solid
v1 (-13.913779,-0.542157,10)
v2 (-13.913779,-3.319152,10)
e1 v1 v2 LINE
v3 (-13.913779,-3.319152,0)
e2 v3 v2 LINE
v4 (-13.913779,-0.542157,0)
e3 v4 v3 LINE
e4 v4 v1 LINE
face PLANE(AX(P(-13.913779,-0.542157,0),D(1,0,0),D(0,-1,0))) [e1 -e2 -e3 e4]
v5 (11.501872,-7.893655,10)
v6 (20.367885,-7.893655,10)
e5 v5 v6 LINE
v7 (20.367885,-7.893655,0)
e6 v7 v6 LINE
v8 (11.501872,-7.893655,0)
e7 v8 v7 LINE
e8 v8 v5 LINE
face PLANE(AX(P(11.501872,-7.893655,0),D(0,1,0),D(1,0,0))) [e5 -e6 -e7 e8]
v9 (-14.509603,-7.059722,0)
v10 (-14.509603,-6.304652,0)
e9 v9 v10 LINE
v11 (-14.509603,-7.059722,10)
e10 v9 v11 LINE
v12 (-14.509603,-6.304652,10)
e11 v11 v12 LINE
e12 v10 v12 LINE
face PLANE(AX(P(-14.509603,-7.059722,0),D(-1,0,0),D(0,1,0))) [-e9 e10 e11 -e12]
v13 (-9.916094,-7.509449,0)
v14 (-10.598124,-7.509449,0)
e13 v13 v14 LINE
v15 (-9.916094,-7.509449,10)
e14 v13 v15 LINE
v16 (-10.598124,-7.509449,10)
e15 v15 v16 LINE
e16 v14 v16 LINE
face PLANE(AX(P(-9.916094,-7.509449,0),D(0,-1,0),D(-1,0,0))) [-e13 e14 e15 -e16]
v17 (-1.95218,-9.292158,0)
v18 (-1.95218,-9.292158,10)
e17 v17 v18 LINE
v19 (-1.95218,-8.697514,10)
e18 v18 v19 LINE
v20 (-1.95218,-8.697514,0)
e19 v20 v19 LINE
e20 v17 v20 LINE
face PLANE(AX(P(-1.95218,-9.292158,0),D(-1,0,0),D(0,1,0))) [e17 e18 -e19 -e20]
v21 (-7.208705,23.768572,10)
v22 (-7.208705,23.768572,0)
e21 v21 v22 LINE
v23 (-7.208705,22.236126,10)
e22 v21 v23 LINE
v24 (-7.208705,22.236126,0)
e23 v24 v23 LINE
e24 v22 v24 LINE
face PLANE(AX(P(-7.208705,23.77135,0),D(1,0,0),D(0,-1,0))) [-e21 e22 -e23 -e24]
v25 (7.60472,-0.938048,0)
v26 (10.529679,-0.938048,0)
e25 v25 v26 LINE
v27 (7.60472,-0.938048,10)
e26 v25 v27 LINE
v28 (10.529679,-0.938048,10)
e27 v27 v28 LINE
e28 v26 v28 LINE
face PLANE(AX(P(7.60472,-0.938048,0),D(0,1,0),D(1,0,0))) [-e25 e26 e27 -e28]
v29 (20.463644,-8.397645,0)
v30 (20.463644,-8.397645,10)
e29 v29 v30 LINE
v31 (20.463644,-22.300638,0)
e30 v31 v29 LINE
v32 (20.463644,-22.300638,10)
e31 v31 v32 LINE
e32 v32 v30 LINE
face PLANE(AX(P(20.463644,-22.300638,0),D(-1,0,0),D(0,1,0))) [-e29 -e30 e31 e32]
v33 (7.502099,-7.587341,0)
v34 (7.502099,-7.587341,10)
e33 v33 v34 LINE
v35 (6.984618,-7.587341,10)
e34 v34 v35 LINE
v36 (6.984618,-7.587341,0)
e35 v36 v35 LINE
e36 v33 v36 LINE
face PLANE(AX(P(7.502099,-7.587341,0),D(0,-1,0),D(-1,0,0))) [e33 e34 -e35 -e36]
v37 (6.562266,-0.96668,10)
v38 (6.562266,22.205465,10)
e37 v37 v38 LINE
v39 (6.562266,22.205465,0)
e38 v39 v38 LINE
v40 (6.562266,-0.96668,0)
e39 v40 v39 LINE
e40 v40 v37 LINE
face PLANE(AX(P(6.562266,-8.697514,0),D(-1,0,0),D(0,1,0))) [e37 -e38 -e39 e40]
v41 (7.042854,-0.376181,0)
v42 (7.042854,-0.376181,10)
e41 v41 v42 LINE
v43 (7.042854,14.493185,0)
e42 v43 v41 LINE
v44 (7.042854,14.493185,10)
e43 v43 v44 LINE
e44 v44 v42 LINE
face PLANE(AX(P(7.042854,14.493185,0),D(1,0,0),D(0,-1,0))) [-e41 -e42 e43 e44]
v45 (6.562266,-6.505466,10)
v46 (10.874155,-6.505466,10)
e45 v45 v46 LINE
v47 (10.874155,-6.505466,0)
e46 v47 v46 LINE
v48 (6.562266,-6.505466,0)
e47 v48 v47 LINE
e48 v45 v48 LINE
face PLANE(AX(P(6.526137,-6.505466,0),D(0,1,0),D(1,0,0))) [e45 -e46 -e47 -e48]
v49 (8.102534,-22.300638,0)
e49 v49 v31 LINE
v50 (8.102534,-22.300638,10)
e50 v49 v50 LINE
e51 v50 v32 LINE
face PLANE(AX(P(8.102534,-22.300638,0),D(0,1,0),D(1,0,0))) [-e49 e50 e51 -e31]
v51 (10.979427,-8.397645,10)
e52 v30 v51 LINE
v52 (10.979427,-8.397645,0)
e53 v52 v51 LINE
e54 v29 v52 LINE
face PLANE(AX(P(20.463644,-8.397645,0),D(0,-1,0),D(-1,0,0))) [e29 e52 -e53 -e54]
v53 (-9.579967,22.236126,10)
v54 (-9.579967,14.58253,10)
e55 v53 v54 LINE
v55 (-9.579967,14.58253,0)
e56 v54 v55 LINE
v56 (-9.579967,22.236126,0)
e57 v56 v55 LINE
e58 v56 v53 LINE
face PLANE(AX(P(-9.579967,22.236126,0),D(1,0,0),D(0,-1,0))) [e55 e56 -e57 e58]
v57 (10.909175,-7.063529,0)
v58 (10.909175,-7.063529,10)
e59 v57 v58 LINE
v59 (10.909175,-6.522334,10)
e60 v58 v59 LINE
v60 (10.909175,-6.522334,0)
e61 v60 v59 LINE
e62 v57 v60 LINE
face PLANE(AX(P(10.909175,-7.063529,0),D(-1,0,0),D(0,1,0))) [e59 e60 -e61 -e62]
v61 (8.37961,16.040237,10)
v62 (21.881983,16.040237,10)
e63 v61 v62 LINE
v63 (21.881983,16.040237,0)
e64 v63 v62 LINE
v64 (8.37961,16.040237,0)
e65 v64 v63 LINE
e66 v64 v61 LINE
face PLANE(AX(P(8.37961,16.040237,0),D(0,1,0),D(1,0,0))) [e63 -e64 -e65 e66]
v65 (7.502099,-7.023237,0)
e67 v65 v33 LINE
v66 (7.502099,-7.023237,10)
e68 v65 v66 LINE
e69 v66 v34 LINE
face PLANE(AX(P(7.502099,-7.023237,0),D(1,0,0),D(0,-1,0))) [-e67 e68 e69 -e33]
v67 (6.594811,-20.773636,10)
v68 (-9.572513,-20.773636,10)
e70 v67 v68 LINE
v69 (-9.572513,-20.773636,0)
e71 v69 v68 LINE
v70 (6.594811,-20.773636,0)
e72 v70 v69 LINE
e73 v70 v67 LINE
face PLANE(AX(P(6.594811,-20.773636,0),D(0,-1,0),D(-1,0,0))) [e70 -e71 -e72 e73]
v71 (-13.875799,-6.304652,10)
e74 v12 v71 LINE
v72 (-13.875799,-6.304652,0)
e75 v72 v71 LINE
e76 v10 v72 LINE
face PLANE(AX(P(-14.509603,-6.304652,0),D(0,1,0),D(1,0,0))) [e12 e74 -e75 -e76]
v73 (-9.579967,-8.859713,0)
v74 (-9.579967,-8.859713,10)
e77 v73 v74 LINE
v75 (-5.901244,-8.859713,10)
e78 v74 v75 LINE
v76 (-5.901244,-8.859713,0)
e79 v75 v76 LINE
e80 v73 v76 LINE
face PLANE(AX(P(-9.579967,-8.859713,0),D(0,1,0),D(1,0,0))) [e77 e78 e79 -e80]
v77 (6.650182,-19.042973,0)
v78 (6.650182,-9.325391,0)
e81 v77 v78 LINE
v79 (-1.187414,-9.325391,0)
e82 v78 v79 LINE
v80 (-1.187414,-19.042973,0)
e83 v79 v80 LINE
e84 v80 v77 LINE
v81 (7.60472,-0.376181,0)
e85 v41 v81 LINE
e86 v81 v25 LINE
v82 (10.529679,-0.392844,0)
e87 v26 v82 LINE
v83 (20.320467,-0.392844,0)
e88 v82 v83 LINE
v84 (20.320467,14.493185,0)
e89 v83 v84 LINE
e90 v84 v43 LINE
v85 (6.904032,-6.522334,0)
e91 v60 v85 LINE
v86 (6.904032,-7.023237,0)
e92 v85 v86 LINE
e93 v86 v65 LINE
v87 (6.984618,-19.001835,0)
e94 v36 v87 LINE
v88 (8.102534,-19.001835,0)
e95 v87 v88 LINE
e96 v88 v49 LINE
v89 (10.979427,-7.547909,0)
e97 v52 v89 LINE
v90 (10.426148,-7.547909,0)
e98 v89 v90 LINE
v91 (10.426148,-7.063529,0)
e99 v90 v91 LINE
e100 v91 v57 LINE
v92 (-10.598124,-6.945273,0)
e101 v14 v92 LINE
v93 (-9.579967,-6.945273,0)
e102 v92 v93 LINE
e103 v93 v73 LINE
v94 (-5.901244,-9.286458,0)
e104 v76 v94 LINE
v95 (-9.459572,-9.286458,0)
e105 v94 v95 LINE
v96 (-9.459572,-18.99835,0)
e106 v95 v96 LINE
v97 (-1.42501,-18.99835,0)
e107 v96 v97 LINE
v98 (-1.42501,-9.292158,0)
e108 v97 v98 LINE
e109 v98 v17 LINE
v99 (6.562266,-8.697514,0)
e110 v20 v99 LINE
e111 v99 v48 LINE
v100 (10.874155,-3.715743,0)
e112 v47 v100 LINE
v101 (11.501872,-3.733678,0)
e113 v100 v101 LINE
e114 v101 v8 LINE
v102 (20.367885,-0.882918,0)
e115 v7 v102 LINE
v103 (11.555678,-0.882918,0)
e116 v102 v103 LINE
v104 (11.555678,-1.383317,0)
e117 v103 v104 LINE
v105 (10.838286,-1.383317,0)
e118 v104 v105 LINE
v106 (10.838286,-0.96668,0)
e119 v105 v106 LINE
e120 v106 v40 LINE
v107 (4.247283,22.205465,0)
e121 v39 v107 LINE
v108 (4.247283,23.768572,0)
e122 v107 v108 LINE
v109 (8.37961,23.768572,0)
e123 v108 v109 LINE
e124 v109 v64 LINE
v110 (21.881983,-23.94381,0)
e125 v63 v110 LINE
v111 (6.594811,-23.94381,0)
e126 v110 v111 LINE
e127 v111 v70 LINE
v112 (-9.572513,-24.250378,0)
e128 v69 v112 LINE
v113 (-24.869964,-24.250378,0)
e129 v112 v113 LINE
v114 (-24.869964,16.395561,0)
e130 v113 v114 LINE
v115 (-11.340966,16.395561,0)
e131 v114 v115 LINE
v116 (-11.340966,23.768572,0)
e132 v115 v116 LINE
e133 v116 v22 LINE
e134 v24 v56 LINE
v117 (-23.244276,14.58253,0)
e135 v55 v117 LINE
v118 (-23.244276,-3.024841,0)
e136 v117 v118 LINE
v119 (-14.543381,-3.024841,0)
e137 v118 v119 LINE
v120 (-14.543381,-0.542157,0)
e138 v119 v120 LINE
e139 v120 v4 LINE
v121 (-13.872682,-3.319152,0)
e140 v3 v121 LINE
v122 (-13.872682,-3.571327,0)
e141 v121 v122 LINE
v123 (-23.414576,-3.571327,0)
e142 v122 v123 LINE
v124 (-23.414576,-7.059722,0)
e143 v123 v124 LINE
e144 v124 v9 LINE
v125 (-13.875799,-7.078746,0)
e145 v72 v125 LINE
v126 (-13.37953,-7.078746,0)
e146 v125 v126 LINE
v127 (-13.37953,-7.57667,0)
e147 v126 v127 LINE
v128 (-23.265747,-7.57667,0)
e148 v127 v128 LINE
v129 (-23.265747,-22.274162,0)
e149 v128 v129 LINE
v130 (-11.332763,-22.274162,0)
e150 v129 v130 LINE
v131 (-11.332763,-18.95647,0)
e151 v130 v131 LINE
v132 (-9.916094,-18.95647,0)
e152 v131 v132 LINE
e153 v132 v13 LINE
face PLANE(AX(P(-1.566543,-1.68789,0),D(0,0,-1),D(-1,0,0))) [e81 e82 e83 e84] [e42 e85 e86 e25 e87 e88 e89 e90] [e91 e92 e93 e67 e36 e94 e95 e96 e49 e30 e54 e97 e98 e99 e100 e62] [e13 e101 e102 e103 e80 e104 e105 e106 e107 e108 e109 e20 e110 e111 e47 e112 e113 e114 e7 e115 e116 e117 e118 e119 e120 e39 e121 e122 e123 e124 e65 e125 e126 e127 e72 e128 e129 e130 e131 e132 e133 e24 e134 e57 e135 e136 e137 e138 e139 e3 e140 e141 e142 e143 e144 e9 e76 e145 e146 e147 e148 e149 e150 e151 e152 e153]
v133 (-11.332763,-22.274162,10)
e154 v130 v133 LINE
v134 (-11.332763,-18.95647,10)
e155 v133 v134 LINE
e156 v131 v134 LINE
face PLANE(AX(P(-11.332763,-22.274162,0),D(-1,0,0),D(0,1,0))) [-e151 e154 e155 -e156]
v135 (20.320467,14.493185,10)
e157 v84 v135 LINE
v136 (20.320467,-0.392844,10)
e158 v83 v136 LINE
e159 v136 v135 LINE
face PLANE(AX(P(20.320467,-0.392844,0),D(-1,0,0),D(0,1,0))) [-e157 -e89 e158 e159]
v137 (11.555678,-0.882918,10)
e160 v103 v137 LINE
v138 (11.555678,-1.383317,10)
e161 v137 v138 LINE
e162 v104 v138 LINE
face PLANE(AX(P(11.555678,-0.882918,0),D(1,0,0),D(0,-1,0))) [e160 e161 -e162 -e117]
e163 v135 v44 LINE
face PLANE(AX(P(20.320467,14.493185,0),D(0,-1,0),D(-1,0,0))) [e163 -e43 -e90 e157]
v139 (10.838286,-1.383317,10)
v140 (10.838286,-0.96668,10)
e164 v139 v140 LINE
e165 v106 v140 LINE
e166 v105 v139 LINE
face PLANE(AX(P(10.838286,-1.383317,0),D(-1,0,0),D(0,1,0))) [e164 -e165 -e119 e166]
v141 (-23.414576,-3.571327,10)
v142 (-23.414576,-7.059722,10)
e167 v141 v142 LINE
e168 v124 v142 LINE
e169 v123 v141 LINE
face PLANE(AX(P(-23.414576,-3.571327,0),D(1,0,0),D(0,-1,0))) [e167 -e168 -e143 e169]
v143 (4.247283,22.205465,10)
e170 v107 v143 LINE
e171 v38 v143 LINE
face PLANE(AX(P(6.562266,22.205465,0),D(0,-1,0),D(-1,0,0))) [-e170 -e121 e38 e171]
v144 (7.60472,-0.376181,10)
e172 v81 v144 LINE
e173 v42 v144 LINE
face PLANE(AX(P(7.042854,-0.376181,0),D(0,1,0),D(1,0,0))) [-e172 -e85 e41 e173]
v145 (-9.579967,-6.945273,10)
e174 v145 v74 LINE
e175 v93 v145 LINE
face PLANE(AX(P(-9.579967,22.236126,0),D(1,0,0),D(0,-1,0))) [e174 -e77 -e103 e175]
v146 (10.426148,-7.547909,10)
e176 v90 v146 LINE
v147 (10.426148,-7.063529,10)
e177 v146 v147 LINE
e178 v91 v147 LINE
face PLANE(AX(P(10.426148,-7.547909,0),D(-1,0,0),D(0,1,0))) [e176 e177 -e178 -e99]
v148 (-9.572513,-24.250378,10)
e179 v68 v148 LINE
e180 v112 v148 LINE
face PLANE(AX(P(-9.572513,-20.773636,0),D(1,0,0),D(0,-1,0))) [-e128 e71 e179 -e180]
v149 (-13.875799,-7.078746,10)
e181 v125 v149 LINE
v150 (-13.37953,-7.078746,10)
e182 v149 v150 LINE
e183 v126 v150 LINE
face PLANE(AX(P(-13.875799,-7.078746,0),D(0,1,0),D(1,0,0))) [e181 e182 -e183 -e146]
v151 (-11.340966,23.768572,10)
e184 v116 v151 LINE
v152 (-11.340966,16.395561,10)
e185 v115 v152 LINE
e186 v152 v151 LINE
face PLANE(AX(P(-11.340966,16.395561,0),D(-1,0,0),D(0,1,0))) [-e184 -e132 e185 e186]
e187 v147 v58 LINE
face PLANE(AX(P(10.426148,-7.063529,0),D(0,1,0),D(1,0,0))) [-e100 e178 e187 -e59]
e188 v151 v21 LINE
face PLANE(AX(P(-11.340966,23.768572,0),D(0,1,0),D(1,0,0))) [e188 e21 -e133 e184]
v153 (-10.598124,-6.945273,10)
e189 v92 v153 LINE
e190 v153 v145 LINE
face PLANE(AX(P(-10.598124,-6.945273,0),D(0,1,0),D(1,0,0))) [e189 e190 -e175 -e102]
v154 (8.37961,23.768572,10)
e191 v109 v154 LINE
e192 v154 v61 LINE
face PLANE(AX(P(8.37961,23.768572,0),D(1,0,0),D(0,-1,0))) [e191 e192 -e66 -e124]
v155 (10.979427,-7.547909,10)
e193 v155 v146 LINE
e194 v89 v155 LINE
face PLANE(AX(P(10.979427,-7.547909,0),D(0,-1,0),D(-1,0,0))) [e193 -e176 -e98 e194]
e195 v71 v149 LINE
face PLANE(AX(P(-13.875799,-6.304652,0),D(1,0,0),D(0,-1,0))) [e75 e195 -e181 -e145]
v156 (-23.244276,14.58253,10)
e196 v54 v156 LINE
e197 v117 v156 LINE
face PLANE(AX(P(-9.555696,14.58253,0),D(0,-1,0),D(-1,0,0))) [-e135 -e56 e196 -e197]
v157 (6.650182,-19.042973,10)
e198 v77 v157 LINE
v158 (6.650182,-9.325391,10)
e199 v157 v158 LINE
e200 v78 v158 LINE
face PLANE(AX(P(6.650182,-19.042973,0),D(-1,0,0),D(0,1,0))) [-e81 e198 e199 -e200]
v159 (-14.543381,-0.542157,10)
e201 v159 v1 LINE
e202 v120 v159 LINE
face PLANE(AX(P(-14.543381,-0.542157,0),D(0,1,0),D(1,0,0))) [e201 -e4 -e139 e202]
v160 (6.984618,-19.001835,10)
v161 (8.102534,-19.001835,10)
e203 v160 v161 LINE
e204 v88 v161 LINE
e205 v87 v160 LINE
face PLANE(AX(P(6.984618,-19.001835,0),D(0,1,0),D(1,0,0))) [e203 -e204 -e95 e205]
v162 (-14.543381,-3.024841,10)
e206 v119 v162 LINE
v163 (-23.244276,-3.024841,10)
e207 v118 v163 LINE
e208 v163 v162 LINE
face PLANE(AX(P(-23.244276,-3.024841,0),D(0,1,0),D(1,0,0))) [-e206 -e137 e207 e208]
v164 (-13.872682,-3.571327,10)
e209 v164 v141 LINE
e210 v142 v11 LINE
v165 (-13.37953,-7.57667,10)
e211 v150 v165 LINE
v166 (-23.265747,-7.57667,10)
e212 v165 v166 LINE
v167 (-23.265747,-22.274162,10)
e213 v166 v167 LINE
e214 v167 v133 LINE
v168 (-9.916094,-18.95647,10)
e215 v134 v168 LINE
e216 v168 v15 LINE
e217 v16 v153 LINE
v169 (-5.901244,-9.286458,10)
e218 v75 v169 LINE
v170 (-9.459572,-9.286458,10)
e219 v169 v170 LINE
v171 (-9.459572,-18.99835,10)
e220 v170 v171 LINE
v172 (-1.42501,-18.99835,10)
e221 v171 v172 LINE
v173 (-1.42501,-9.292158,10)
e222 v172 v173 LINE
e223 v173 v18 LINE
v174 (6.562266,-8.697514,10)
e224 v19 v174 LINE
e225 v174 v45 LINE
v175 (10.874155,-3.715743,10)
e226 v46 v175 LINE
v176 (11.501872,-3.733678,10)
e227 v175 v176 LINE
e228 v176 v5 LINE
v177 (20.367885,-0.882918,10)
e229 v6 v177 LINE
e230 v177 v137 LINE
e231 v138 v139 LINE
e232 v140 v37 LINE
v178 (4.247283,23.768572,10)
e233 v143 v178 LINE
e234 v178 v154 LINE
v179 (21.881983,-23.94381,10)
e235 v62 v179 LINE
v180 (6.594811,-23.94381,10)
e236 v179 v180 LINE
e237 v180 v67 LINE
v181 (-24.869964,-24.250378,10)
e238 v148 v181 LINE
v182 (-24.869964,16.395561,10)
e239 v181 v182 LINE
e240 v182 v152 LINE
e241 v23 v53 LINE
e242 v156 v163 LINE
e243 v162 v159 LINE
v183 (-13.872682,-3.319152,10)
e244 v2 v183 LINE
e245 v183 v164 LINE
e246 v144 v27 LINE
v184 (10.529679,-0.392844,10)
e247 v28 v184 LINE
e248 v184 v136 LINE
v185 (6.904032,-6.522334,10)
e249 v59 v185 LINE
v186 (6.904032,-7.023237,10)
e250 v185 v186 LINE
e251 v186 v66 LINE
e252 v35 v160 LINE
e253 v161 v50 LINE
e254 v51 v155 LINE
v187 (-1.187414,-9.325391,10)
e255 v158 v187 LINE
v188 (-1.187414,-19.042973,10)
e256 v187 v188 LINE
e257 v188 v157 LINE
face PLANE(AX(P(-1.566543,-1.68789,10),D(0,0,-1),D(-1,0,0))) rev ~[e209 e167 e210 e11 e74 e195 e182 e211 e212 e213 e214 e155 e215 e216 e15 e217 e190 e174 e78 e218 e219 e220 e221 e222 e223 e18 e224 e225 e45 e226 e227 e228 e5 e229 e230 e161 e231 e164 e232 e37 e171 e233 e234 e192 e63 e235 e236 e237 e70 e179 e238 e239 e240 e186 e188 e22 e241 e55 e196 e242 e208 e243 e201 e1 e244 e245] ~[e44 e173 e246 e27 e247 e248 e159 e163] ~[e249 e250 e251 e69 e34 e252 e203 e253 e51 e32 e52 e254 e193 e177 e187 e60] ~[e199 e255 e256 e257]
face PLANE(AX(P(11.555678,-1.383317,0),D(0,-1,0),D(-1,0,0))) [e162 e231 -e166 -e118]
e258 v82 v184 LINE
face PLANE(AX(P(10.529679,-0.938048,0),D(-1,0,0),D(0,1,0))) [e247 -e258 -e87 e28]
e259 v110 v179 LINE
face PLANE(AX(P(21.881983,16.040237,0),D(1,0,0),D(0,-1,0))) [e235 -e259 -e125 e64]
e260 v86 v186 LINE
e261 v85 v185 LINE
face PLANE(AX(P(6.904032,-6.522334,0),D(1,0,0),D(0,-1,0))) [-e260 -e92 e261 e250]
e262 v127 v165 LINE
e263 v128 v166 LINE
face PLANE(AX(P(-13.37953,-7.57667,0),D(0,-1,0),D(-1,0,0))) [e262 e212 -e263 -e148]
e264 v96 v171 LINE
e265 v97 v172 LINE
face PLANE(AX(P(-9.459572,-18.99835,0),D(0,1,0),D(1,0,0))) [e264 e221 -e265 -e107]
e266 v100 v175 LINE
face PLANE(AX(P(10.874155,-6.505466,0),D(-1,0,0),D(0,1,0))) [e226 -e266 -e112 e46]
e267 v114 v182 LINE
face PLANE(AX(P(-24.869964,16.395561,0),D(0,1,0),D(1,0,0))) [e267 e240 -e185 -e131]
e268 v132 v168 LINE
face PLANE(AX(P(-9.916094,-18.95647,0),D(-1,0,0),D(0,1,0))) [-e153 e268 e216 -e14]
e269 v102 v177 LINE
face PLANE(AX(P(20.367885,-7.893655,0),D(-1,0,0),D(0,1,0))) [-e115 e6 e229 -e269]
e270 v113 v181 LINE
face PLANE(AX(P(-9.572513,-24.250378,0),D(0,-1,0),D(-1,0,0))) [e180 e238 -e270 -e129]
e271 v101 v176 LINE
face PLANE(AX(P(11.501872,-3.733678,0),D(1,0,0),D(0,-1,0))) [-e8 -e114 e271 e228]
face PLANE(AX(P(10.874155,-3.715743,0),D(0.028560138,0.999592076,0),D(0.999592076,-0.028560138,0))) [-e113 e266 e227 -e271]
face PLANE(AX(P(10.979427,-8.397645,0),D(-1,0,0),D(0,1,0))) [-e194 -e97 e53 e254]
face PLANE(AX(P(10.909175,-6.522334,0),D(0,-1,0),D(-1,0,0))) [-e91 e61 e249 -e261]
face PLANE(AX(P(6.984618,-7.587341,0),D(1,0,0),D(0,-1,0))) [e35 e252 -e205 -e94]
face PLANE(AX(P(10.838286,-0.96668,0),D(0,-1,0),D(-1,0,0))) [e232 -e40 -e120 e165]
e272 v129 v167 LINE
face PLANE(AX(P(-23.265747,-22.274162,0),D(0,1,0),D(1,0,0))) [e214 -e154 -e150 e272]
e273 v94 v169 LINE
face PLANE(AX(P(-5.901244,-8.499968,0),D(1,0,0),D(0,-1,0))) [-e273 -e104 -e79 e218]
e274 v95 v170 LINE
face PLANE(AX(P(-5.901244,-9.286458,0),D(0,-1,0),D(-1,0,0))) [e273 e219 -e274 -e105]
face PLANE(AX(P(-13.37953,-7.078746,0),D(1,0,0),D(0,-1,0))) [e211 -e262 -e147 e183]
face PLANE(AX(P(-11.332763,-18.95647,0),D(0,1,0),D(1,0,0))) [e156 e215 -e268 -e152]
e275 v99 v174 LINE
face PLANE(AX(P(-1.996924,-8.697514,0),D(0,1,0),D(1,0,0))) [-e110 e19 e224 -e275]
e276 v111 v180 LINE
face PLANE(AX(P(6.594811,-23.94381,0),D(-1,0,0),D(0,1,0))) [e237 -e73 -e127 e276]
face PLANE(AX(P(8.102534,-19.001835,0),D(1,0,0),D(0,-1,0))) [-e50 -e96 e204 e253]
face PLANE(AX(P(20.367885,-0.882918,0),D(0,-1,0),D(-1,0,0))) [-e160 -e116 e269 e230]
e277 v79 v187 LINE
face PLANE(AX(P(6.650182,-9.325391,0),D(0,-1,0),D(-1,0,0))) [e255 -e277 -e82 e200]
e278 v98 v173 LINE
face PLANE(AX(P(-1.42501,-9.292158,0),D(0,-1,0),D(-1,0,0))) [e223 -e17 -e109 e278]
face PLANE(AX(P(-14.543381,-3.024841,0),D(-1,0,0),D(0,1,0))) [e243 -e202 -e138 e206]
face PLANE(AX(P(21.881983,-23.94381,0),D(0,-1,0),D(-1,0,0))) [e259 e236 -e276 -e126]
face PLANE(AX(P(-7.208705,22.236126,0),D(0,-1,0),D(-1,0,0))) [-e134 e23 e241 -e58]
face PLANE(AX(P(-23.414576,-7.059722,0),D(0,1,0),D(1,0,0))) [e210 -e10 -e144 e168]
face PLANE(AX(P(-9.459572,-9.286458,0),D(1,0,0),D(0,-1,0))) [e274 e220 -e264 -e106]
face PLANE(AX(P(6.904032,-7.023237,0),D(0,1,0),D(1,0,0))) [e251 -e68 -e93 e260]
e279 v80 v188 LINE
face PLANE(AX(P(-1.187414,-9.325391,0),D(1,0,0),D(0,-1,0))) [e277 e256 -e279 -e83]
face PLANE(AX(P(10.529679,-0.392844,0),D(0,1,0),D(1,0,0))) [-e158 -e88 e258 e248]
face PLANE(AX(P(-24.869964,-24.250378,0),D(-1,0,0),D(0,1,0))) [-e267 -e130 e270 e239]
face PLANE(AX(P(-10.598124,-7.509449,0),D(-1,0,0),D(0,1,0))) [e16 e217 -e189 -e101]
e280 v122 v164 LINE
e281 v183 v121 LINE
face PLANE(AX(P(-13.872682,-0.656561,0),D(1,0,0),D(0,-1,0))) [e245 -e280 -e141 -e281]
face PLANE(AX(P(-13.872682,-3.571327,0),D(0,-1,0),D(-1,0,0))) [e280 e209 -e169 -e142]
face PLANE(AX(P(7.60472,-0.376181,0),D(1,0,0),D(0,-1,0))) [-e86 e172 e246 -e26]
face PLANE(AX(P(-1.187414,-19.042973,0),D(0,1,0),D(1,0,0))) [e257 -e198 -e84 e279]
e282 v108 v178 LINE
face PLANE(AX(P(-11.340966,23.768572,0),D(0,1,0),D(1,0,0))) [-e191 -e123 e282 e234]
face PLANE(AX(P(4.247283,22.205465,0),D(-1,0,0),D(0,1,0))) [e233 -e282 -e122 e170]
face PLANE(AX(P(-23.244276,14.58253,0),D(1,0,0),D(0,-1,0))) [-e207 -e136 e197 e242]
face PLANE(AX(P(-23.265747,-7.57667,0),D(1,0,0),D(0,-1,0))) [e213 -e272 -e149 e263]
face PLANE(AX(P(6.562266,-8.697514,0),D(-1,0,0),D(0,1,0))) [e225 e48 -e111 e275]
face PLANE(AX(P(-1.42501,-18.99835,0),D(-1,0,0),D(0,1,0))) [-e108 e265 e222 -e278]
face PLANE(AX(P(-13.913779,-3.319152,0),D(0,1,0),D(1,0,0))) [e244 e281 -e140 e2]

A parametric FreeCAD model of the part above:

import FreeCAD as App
import Part
import Sketcher

V = App.Vector
Q = App.Units.Quantity

doc = App.newDocument("Part")
body = doc.addObject("PartDesign::Body", "Body")

sketch1 = body.newObject("Sketcher::SketchObject", "Sketch")
sketch1.AttachmentSupport = (doc.getObject("XY_Plane"), [""])
sketch1.MapMode = "FlatFace"
sketch1.addGeometry([
    Part.LineSegment(V(-11.3, 16.4, 0), V(-24.9, 16.4, 0)),
    Part.LineSegment(V(-24.9, 16.4, 0), V(-24.9, -24.3, 0)),
    Part.LineSegment(V(-24.9, -24.3, 0), V(-9.6, -24.3, 0)),
    Part.LineSegment(V(-9.6, -24.3, 0), V(-9.6, -20.8, 0)),
    Part.LineSegment(V(-9.6, -20.8, 0), V(6.6, -20.8, 0)),
    Part.LineSegment(V(6.6, -20.8, 0), V(6.6, -23.9, 0)),
    Part.LineSegment(V(6.6, -23.9, 0), V(21.9, -23.9, 0)),
    Part.LineSegment(V(21.9, -23.9, 0), V(21.9, 16, 0)),
    Part.LineSegment(V(21.9, 16, 0), V(8.4, 16, 0)),
    Part.LineSegment(V(8.4, 16, 0), V(8.4, 23.8, 0)),
    Part.LineSegment(V(8.4, 23.8, 0), V(-11.3, 23.8, 0)),
    Part.LineSegment(V(-11.3, 23.8, 0), V(-11.3, 16.4, 0)),
], False)
sketch1.addConstraint([
    Sketcher.Constraint("Coincident", 0, 2, 1, 1),
    Sketcher.Constraint("Coincident", 1, 2, 2, 1),
    Sketcher.Constraint("Coincident", 2, 2, 3, 1),
    Sketcher.Constraint("Coincident", 3, 2, 4, 1),
    Sketcher.Constraint("Coincident", 4, 2, 5, 1),
    Sketcher.Constraint("Coincident", 5, 2, 6, 1),
    Sketcher.Constraint("Coincident", 6, 2, 7, 1),
    Sketcher.Constraint("Coincident", 7, 2, 8, 1),
    Sketcher.Constraint("Coincident", 8, 2, 9, 1),
    Sketcher.Constraint("Coincident", 9, 2, 10, 1),
    Sketcher.Constraint("Coincident", 10, 2, 11, 1),
    Sketcher.Constraint("Coincident", 11, 2, 0, 1),
    Sketcher.Constraint("Horizontal", 0),
    Sketcher.Constraint("Vertical", 1),
    Sketcher.Constraint("Horizontal", 2),
    Sketcher.Constraint("Vertical", 3),
    Sketcher.Constraint("Horizontal", 4),
    Sketcher.Constraint("Vertical", 5),
    Sketcher.Constraint("Horizontal", 6),
    Sketcher.Constraint("Vertical", 7),
    Sketcher.Constraint("Horizontal", 8),
    Sketcher.Constraint("Vertical", 9),
    Sketcher.Constraint("Horizontal", 10),
    Sketcher.Constraint("Vertical", 11),
    Sketcher.Constraint("DistanceX", 2, 1, 2, 2, Q("15.297451 mm")),
    Sketcher.Constraint("DistanceY", 1, 2, 1, 1, Q("40.645939 mm")),
    Sketcher.Constraint("DistanceY", 11, 2, 11, 1, Q("7.373011 mm")),
    Sketcher.Constraint("DistanceX", 4, 2, 8, 2, Q("1.784799 mm")),
    Sketcher.Constraint("DistanceX", 0, 2, 0, 1, Q("13.528998 mm")),
    Sketcher.Constraint("DistanceX", 4, 1, 4, 2, Q("16.167324 mm")),
    Sketcher.Constraint("DistanceX", 6, 1, 6, 2, Q("15.287172 mm")),
    Sketcher.Constraint("DistanceY", 3, 1, 3, 2, Q("3.476742 mm")),
    Sketcher.Constraint("DistanceY", 5, 2, 5, 1, Q("3.170174 mm")),
    Sketcher.Constraint("DistanceY", 7, 1, 7, 2, Q("39.984047 mm")),
    Sketcher.Constraint("DistanceY", -1, 1, 0, 2, Q("16.395561 mm")),
    Sketcher.Constraint("DistanceX", -1, 1, 4, 2, Q("6.594811 mm")),
])
pad1 = body.newObject("PartDesign::Pad", "Pad")
pad1.Profile = sketch1
pad1.Length = 10

sketch2 = body.newObject("Sketcher::SketchObject", "Sketch001")
sketch2.AttachmentSupport = (doc.getObject("XY_Plane"), [""])
sketch2.MapMode = "FlatFace"
sketch2.addGeometry([
    Part.LineSegment(V(7, 14.5, 0), V(7, -0.4, 0)),
    Part.LineSegment(V(7, -0.4, 0), V(7.6, -0.4, 0)),
    Part.LineSegment(V(7.6, -0.4, 0), V(7.6, -0.9, 0)),
    Part.LineSegment(V(7.6, -0.9, 0), V(10.5, -0.9, 0)),
    Part.LineSegment(V(10.5, -0.9, 0), V(10.5, -0.4, 0)),
    Part.LineSegment(V(10.5, -0.4, 0), V(20.3, -0.4, 0)),
    Part.LineSegment(V(20.3, -0.4, 0), V(20.3, 14.5, 0)),
    Part.LineSegment(V(20.3, 14.5, 0), V(7, 14.5, 0)),
], False)
sketch2.addConstraint([
    Sketcher.Constraint("Coincident", 0, 2, 1, 1),
    Sketcher.Constraint("Coincident", 1, 2, 2, 1),
    Sketcher.Constraint("Coincident", 2, 2, 3, 1),
    Sketcher.Constraint("Coincident", 3, 2, 4, 1),
    Sketcher.Constraint("Coincident", 4, 2, 5, 1),
    Sketcher.Constraint("Coincident", 5, 2, 6, 1),
    Sketcher.Constraint("Coincident", 6, 2, 7, 1),
    Sketcher.Constraint("Coincident", 7, 2, 0, 1),
    Sketcher.Constraint("Vertical", 0),
    Sketcher.Constraint("Horizontal", 1),
    Sketcher.Constraint("Vertical", 2),
    Sketcher.Constraint("Horizontal", 3),
    Sketcher.Constraint("Vertical", 4),
    Sketcher.Constraint("Horizontal", 5),
    Sketcher.Constraint("Vertical", 6),
    Sketcher.Constraint("Horizontal", 7),
    Sketcher.Constraint("Equal", 1, 2),
    Sketcher.Constraint("DistanceX", 3, 1, 3, 2, Q("2.924959 mm")),
    Sketcher.Constraint("DistanceX", 5, 1, 5, 2, Q("9.790788 mm")),
    Sketcher.Constraint("DistanceY", 6, 1, 6, 2, Q("14.886029 mm")),
    Sketcher.Constraint("DistanceX", 1, 1, 1, 2, Q("0.561866 mm")),
    Sketcher.Constraint("DistanceY", 0, 2, 0, 1, Q("14.869366 mm")),
    Sketcher.Constraint("DistanceY", 0, 2, -1, 1, Q("0.376181 mm")),
    Sketcher.Constraint("DistanceX", -1, 1, 1, 2, Q("7.60472 mm")),
])
pocket1 = body.newObject("PartDesign::Pocket", "Pocket")
pocket1.Profile = sketch2
pocket1.Type = "ThroughAll"
pocket1.Midplane = True

sketch3 = body.newObject("Sketcher::SketchObject", "Sketch002")
sketch3.AttachmentSupport = (doc.getObject("XY_Plane"), [""])
sketch3.MapMode = "FlatFace"
sketch3.addGeometry([
    Part.LineSegment(V(6.56, -8.7, 0), V(6.56, 22.21, 0)),
    Part.LineSegment(V(6.56, 22.21, 0), V(4.25, 22.21, 0)),
    Part.LineSegment(V(4.25, 22.21, 0), V(4.25, 23.77, 0)),
    Part.LineSegment(V(4.25, 23.77, 0), V(-7.21, 23.77, 0)),
    Part.LineSegment(V(-7.21, 23.77, 0), V(-7.21, 22.24, 0)),
    Part.LineSegment(V(-7.21, 22.24, 0), V(-9.58, 22.24, 0)),
    Part.LineSegment(V(-9.58, 22.24, 0), V(-9.58, -8.86, 0)),
    Part.LineSegment(V(-9.58, -8.86, 0), V(-5.78, -8.86, 0)),
    Part.LineSegment(V(-5.78, -8.86, 0), V(-5.78, -9.25, 0)),
    Part.LineSegment(V(-5.78, -9.25, 0), V(-2, -9.25, 0)),
    Part.LineSegment(V(-2, -9.25, 0), V(-2, -8.7, 0)),
    Part.LineSegment(V(-2, -8.7, 0), V(6.56, -8.7, 0)),
], False)
sketch3.addConstraint([
    Sketcher.Constraint("Coincident", 0, 2, 1, 1),
    Sketcher.Constraint("Coincident", 1, 2, 2, 1),
    Sketcher.Constraint("Coincident", 2, 2, 3, 1),
    Sketcher.Constraint("Coincident", 3, 2, 4, 1),
    Sketcher.Constraint("Coincident", 4, 2, 5, 1),
    Sketcher.Constraint("Coincident", 5, 2, 6, 1),
    Sketcher.Constraint("Coincident", 6, 2, 7, 1),
    Sketcher.Constraint("Coincident", 7, 2, 8, 1),
    Sketcher.Constraint("Coincident", 8, 2, 9, 1),
    Sketcher.Constraint("Coincident", 9, 2, 10, 1),
    Sketcher.Constraint("Coincident", 10, 2, 11, 1),
    Sketcher.Constraint("Coincident", 11, 2, 0, 1),
    Sketcher.Constraint("Vertical", 0),
    Sketcher.Constraint("Horizontal", 1),
    Sketcher.Constraint("Vertical", 2),
    Sketcher.Constraint("Horizontal", 3),
    Sketcher.Constraint("Vertical", 4),
    Sketcher.Constraint("Horizontal", 5),
    Sketcher.Constraint("Vertical", 6),
    Sketcher.Constraint("Horizontal", 7),
    Sketcher.Constraint("Vertical", 8),
    Sketcher.Constraint("Horizontal", 9),
    Sketcher.Constraint("Vertical", 10),
    Sketcher.Constraint("Horizontal", 11),
    Sketcher.Constraint("DistanceY", 8, 2, -1, 1, Q("9.246999 mm")),
    Sketcher.Constraint("DistanceX", 3, 2, 3, 1, Q("11.455988 mm")),
    Sketcher.Constraint("DistanceX", 5, 2, 5, 1, Q("2.371262 mm")),
    Sketcher.Constraint("DistanceX", 11, 1, 11, 2, Q("8.55919 mm")),
    Sketcher.Constraint("DistanceY", 0, 1, 0, 2, Q("30.902979 mm")),
    Sketcher.Constraint("DistanceY", 6, 2, 6, 1, Q("31.095839 mm")),
    Sketcher.Constraint("DistanceY", 7, 2, 10, 2, Q("0.162199 mm")),
    Sketcher.Constraint("DistanceX", 1, 2, 1, 1, Q("2.314983 mm")),
    Sketcher.Constraint("DistanceX", 7, 1, 7, 2, Q("3.799437 mm")),
    Sketcher.Constraint("DistanceY", 2, 1, 2, 2, Q("1.565885 mm")),
    Sketcher.Constraint("DistanceY", 8, 2, 8, 1, Q("0.387286 mm")),
    Sketcher.Constraint("DistanceX", 7, 2, -1, 1, Q("5.78053 mm")),
])
pocket2 = body.newObject("PartDesign::Pocket", "Pocket001")
pocket2.Profile = sketch3
pocket2.Type = "ThroughAll"
pocket2.Midplane = True

sketch4 = body.newObject("Sketcher::SketchObject", "Sketch003")
sketch4.AttachmentSupport = (doc.getObject("XY_Plane"), [""])
sketch4.MapMode = "FlatFace"
sketch4.addGeometry([
    Part.LineSegment(V(-9.6, 14.6, 0), V(-23.2, 14.6, 0)),
    Part.LineSegment(V(-23.2, 14.6, 0), V(-23.2, -3, 0)),
    Part.LineSegment(V(-23.2, -3, 0), V(-14.5, -3, 0)),
    Part.LineSegment(V(-14.5, -3, 0), V(-14.5, -0.5, 0)),
    Part.LineSegment(V(-14.5, -0.5, 0), V(-13.9, -0.5, 0)),
    Part.LineSegment(V(-13.9, -0.5, 0), V(-13.9, -3.3, 0)),
    Part.LineSegment(V(-13.9, -3.3, 0), V(-9.6, -3.3, 0)),
    Part.LineSegment(V(-9.6, -3.3, 0), V(-9.6, 14.6, 0)),
], False)
sketch4.addConstraint([
    Sketcher.Constraint("Coincident", 0, 2, 1, 1),
    Sketcher.Constraint("Coincident", 1, 2, 2, 1),
    Sketcher.Constraint("Coincident", 2, 2, 3, 1),
    Sketcher.Constraint("Coincident", 3, 2, 4, 1),
    Sketcher.Constraint("Coincident", 4, 2, 5, 1),
    Sketcher.Constraint("Coincident", 5, 2, 6, 1),
    Sketcher.Constraint("Coincident", 6, 2, 7, 1),
    Sketcher.Constraint("Coincident", 7, 2, 0, 1),
    Sketcher.Constraint("Horizontal", 0),
    Sketcher.Constraint("Vertical", 1),
    Sketcher.Constraint("Horizontal", 2),
    Sketcher.Constraint("Vertical", 3),
    Sketcher.Constraint("Horizontal", 4),
    Sketcher.Constraint("Vertical", 5),
    Sketcher.Constraint("Horizontal", 6),
    Sketcher.Constraint("Vertical", 7),
    Sketcher.Constraint("DistanceX", 0, 2, 0, 1, Q("13.68858 mm")),
    Sketcher.Constraint("DistanceY", 1, 2, 1, 1, Q("17.607371 mm")),
    Sketcher.Constraint("DistanceX", 2, 1, 2, 2, Q("8.700895 mm")),
    Sketcher.Constraint("DistanceX", 4, 1, 4, 2, Q("0.629602 mm")),
    Sketcher.Constraint("DistanceY", 3, 1, 3, 2, Q("2.482684 mm")),
    Sketcher.Constraint("DistanceY", 5, 2, 5, 1, Q("2.776995 mm")),
    Sketcher.Constraint("DistanceY", -1, 1, 0, 2, Q("14.58253 mm")),
    Sketcher.Constraint("DistanceX", 2, 2, -1, 1, Q("14.543381 mm")),
])
pocket3 = body.newObject("PartDesign::Pocket", "Pocket002")
pocket3.Profile = sketch4
pocket3.Type = "ThroughAll"
pocket3.Midplane = True

sketch5 = body.newObject("Sketcher::SketchObject", "Sketch004")
sketch5.AttachmentSupport = (doc.getObject("XY_Plane"), [""])
sketch5.MapMode = "FlatFace"
sketch5.addGeometry([
    Part.LineSegment(V(-23.27, -7.58, 0), V(-23.27, -22.27, 0)),
    Part.LineSegment(V(-23.27, -22.27, 0), V(-11.33, -22.27, 0)),
    Part.LineSegment(V(-11.33, -22.27, 0), V(-11.33, -18.96, 0)),
    Part.LineSegment(V(-11.33, -18.96, 0), V(-9.92, -18.96, 0)),
    Part.LineSegment(V(-9.92, -18.96, 0), V(-9.92, -7.51, 0)),
    Part.LineSegment(V(-9.92, -7.51, 0), V(-10.6, -7.51, 0)),
    Part.LineSegment(V(-10.6, -7.51, 0), V(-10.6, -6.95, 0)),
    Part.LineSegment(V(-10.6, -6.95, 0), V(-9.38, -6.95, 0)),
    Part.LineSegment(V(-9.38, -6.95, 0), V(-9.38, -0.66, 0)),
    Part.LineSegment(V(-9.38, -0.66, 0), V(-13.87, -0.66, 0)),
    Part.LineSegment(V(-13.87, -0.66, 0), V(-13.87, -3.57, 0)),
    Part.LineSegment(V(-13.87, -3.57, 0), V(-23.41, -3.57, 0)),
    Part.LineSegment(V(-23.41, -3.57, 0), V(-23.41, -7.06, 0)),
    Part.LineSegment(V(-23.41, -7.06, 0), V(-14.51, -7.06, 0)),
    Part.LineSegment(V(-14.51, -7.06, 0), V(-14.51, -6.3, 0)),
    Part.LineSegment(V(-14.51, -6.3, 0), V(-13.88, -6.3, 0)),
    Part.LineSegment(V(-13.88, -6.3, 0), V(-13.88, -7.08, 0)),
    Part.LineSegment(V(-13.88, -7.08, 0), V(-13.38, -7.08, 0)),
    Part.LineSegment(V(-13.38, -7.08, 0), V(-13.38, -7.58, 0)),
    Part.LineSegment(V(-13.38, -7.58, 0), V(-23.27, -7.58, 0)),
], False)
sketch5.addConstraint([
    Sketcher.Constraint("Coincident", 0, 2, 1, 1),
    Sketcher.Constraint("Coincident", 1, 2, 2, 1),
    Sketcher.Constraint("Coincident", 2, 2, 3, 1),
    Sketcher.Constraint("Coincident", 3, 2, 4, 1),
    Sketcher.Constraint("Coincident", 4, 2, 5, 1),
    Sketcher.Constraint("Coincident", 5, 2, 6, 1),
    Sketcher.Constraint("Coincident", 6, 2, 7, 1),
    Sketcher.Constraint("Coincident", 7, 2, 8, 1),
    Sketcher.Constraint("Coincident", 8, 2, 9, 1),
    Sketcher.Constraint("Coincident", 9, 2, 10, 1),
    Sketcher.Constraint("Coincident", 10, 2, 11, 1),
    Sketcher.Constraint("Coincident", 11, 2, 12, 1),
    Sketcher.Constraint("Coincident", 12, 2, 13, 1),
    Sketcher.Constraint("Coincident", 13, 2, 14, 1),
    Sketcher.Constraint("Coincident", 14, 2, 15, 1),
    Sketcher.Constraint("Coincident", 15, 2, 16, 1),
    Sketcher.Constraint("Coincident", 16, 2, 17, 1),
    Sketcher.Constraint("Coincident", 17, 2, 18, 1),
    Sketcher.Constraint("Coincident", 18, 2, 19, 1),
    Sketcher.Constraint("Coincident", 19, 2, 0, 1),
    Sketcher.Constraint("Vertical", 0),
    Sketcher.Constraint("Horizontal", 1),
    Sketcher.Constraint("Vertical", 2),
    Sketcher.Constraint("Horizontal", 3),
    Sketcher.Constraint("Vertical", 4),
    Sketcher.Constraint("Horizontal", 5),
    Sketcher.Constraint("Vertical", 6),
    Sketcher.Constraint("Horizontal", 7),
    Sketcher.Constraint("Vertical", 8),
    Sketcher.Constraint("Horizontal", 9),
    Sketcher.Constraint("Vertical", 10),
    Sketcher.Constraint("Horizontal", 11),
    Sketcher.Constraint("Vertical", 12),
    Sketcher.Constraint("Horizontal", 13),
    Sketcher.Constraint("Vertical", 14),
    Sketcher.Constraint("Horizontal", 15),
    Sketcher.Constraint("Vertical", 16),
    Sketcher.Constraint("Horizontal", 17),
    Sketcher.Constraint("Vertical", 18),
    Sketcher.Constraint("Horizontal", 19),
    Sketcher.Constraint("DistanceX", 3, 1, 3, 2, Q("1.416669 mm")),
    Sketcher.Constraint("DistanceX", 5, 2, 5, 1, Q("0.68203 mm")),
    Sketcher.Constraint("DistanceX", 9, 2, 9, 1, Q("4.48771 mm")),
    Sketcher.Constraint("DistanceX", 17, 1, 17, 2, Q("0.496269 mm")),
    Sketcher.Constraint("DistanceY", 4, 1, 4, 2, Q("11.447021 mm")),
    Sketcher.Constraint("DistanceY", 14, 1, 14, 2, Q("0.75507 mm")),
    Sketcher.Constraint("DistanceX", 15, 2, -1, 1, Q("13.875799 mm")),
    Sketcher.Constraint("DistanceX", 1, 1, 1, 2, Q("11.932984 mm")),
    Sketcher.Constraint("DistanceX", 7, 1, 7, 2, Q("1.213152 mm")),
    Sketcher.Constraint("DistanceX", 11, 2, 11, 1, Q("9.541894 mm")),
    Sketcher.Constraint("DistanceX", 13, 1, 13, 2, Q("8.904973 mm")),
    Sketcher.Constraint("DistanceX", 15, 1, 15, 2, Q("0.633804 mm")),
    Sketcher.Constraint("DistanceY", 0, 2, 0, 1, Q("14.697492 mm")),
    Sketcher.Constraint("DistanceY", 2, 1, 2, 2, Q("3.317692 mm")),
    Sketcher.Constraint("DistanceY", 6, 1, 6, 2, Q("0.564176 mm")),
    Sketcher.Constraint("DistanceY", 8, 1, 8, 2, Q("6.288712 mm")),
    Sketcher.Constraint("DistanceY", 10, 2, 10, 1, Q("2.914766 mm")),
    Sketcher.Constraint("DistanceY", 12, 2, 12, 1, Q("3.488395 mm")),
    Sketcher.Constraint("DistanceY", 16, 2, 16, 1, Q("0.774094 mm")),
    Sketcher.Constraint("DistanceY", 2, 2, -1, 1, Q("18.95647 mm")),
])
pocket4 = body.newObject("PartDesign::Pocket", "Pocket003")
pocket4.Profile = sketch5
pocket4.Type = "ThroughAll"
pocket4.Midplane = True

sketch6 = body.newObject("Sketcher::SketchObject", "Sketch005")
sketch6.AttachmentSupport = (doc.getObject("XY_Plane"), [""])
sketch6.MapMode = "FlatFace"
sketch6.addGeometry([
    Part.LineSegment(V(-9.5, -9.3, 0), V(-9.5, -19, 0)),
    Part.LineSegment(V(-9.5, -19, 0), V(-1.4, -19, 0)),
    Part.LineSegment(V(-1.4, -19, 0), V(-1.4, -9.3, 0)),
    Part.LineSegment(V(-1.4, -9.3, 0), V(-2, -9.3, 0)),
    Part.LineSegment(V(-2, -9.3, 0), V(-2, -8.5, 0)),
    Part.LineSegment(V(-2, -8.5, 0), V(-5.9, -8.5, 0)),
    Part.LineSegment(V(-5.9, -8.5, 0), V(-5.9, -9.3, 0)),
    Part.LineSegment(V(-5.9, -9.3, 0), V(-9.5, -9.3, 0)),
], False)
sketch6.addConstraint([
    Sketcher.Constraint("Coincident", 0, 2, 1, 1),
    Sketcher.Constraint("Coincident", 1, 2, 2, 1),
    Sketcher.Constraint("Coincident", 2, 2, 3, 1),
    Sketcher.Constraint("Coincident", 3, 2, 4, 1),
    Sketcher.Constraint("Coincident", 4, 2, 5, 1),
    Sketcher.Constraint("Coincident", 5, 2, 6, 1),
    Sketcher.Constraint("Coincident", 6, 2, 7, 1),
    Sketcher.Constraint("Coincident", 7, 2, 0, 1),
    Sketcher.Constraint("Vertical", 0),
    Sketcher.Constraint("Horizontal", 1),
    Sketcher.Constraint("Vertical", 2),
    Sketcher.Constraint("Horizontal", 3),
    Sketcher.Constraint("Vertical", 4),
    Sketcher.Constraint("Horizontal", 5),
    Sketcher.Constraint("Vertical", 6),
    Sketcher.Constraint("Horizontal", 7),
    Sketcher.Constraint("DistanceX", 1, 1, 1, 2, Q("8.034562 mm")),
    Sketcher.Constraint("DistanceX", 3, 2, 3, 1, Q("0.52717 mm")),
    Sketcher.Constraint("DistanceY", 0, 2, 0, 1, Q("9.711892 mm")),
    Sketcher.Constraint("DistanceY", 2, 1, 2, 2, Q("9.706192 mm")),
    Sketcher.Constraint("DistanceY", 4, 1, 4, 2, Q("0.79219 mm")),
    Sketcher.Constraint("DistanceX", 5, 2, 5, 1, Q("3.949064 mm")),
    Sketcher.Constraint("DistanceY", 0, 2, -1, 1, Q("18.99835 mm")),
    Sketcher.Constraint("DistanceX", 1, 2, -1, 1, Q("1.42501 mm")),
])
pocket5 = body.newObject("PartDesign::Pocket", "Pocket004")
pocket5.Profile = sketch6
pocket5.Type = "ThroughAll"
pocket5.Midplane = True

sketch7 = body.newObject("Sketcher::SketchObject", "Sketch006")
sketch7.AttachmentSupport = (doc.getObject("XY_Plane"), [""])
sketch7.MapMode = "FlatFace"
sketch7.addGeometry([
    Part.LineSegment(V(-1, -9, 0), V(-1, -19, 0)),
    Part.LineSegment(V(-1, -19, 0), V(7, -19, 0)),
    Part.LineSegment(V(7, -19, 0), V(7, -9, 0)),
    Part.LineSegment(V(7, -9, 0), V(-1, -9, 0)),
], False)
sketch7.addConstraint([
    Sketcher.Constraint("Coincident", 0, 2, 1, 1),
    Sketcher.Constraint("Coincident", 1, 2, 2, 1),
    Sketcher.Constraint("Coincident", 2, 2, 3, 1),
    Sketcher.Constraint("Coincident", 3, 2, 0, 1),
    Sketcher.Constraint("Vertical", 0),
    Sketcher.Constraint("Horizontal", 1),
    Sketcher.Constraint("Vertical", 2),
    Sketcher.Constraint("Horizontal", 3),
    Sketcher.Constraint("DistanceX", 1, 1, 1, 2, Q("7.837596 mm")),
    Sketcher.Constraint("DistanceY", 0, 2, 0, 1, Q("9.717582 mm")),
    Sketcher.Constraint("DistanceY", 2, 2, -1, 1, Q("9.325391 mm")),
    Sketcher.Constraint("DistanceX", 0, 2, -1, 1, Q("1.187414 mm")),
])
pocket6 = body.newObject("PartDesign::Pocket", "Pocket005")
pocket6.Profile = sketch7
pocket6.Type = "ThroughAll"
pocket6.Midplane = True

sketch8 = body.newObject("Sketcher::SketchObject", "Sketch007")
sketch8.AttachmentSupport = (doc.getObject("XY_Plane"), [""])
sketch8.MapMode = "FlatFace"
sketch8.addGeometry([
    Part.LineSegment(V(6.9, -6.52, 0), V(6.9, -7.02, 0)),
    Part.LineSegment(V(6.9, -7.02, 0), V(7.5, -7.02, 0)),
    Part.LineSegment(V(7.5, -7.02, 0), V(7.5, -7.59, 0)),
    Part.LineSegment(V(7.5, -7.59, 0), V(6.98, -7.59, 0)),
    Part.LineSegment(V(6.98, -7.59, 0), V(6.98, -19, 0)),
    Part.LineSegment(V(6.98, -19, 0), V(8.1, -19, 0)),
    Part.LineSegment(V(8.1, -19, 0), V(8.1, -22.3, 0)),
    Part.LineSegment(V(8.1, -22.3, 0), V(20.46, -22.3, 0)),
    Part.LineSegment(V(20.46, -22.3, 0), V(20.46, -8.4, 0)),
    Part.LineSegment(V(20.46, -8.4, 0), V(10.98, -8.4, 0)),
    Part.LineSegment(V(10.98, -8.4, 0), V(10.98, -7.55, 0)),
    Part.LineSegment(V(10.98, -7.55, 0), V(10.43, -7.55, 0)),
    Part.LineSegment(V(10.43, -7.55, 0), V(10.43, -7.06, 0)),
    Part.LineSegment(V(10.43, -7.06, 0), V(10.91, -7.06, 0)),
    Part.LineSegment(V(10.91, -7.06, 0), V(10.91, -6.52, 0)),
    Part.LineSegment(V(10.91, -6.52, 0), V(6.9, -6.52, 0)),
], False)
sketch8.addConstraint([
    Sketcher.Constraint("Coincident", 0, 2, 1, 1),
    Sketcher.Constraint("Coincident", 1, 2, 2, 1),
    Sketcher.Constraint("Coincident", 2, 2, 3, 1),
    Sketcher.Constraint("Coincident", 3, 2, 4, 1),
    Sketcher.Constraint("Coincident", 4, 2, 5, 1),
    Sketcher.Constraint("Coincident", 5, 2, 6, 1),
    Sketcher.Constraint("Coincident", 6, 2, 7, 1),
    Sketcher.Constraint("Coincident", 7, 2, 8, 1),
    Sketcher.Constraint("Coincident", 8, 2, 9, 1),
    Sketcher.Constraint("Coincident", 9, 2, 10, 1),
    Sketcher.Constraint("Coincident", 10, 2, 11, 1),
    Sketcher.Constraint("Coincident", 11, 2, 12, 1),
    Sketcher.Constraint("Coincident", 12, 2, 13, 1),
    Sketcher.Constraint("Coincident", 13, 2, 14, 1),
    Sketcher.Constraint("Coincident", 14, 2, 15, 1),
    Sketcher.Constraint("Coincident", 15, 2, 0, 1),
    Sketcher.Constraint("Vertical", 0),
    Sketcher.Constraint("Horizontal", 1),
    Sketcher.Constraint("Vertical", 2),
    Sketcher.Constraint("Horizontal", 3),
    Sketcher.Constraint("Vertical", 4),
    Sketcher.Constraint("Horizontal", 5),
    Sketcher.Constraint("Vertical", 6),
    Sketcher.Constraint("Horizontal", 7),
    Sketcher.Constraint("Vertical", 8),
    Sketcher.Constraint("Horizontal", 9),
    Sketcher.Constraint("Vertical", 10),
    Sketcher.Constraint("Horizontal", 11),
    Sketcher.Constraint("Vertical", 12),
    Sketcher.Constraint("Horizontal", 13),
    Sketcher.Constraint("Vertical", 14),
    Sketcher.Constraint("Horizontal", 15),
    Sketcher.Constraint("DistanceX", 3, 2, 3, 1, Q("0.517481 mm")),
    Sketcher.Constraint("DistanceX", 7, 1, 7, 2, Q("12.36111 mm")),
    Sketcher.Constraint("DistanceX", 11, 2, 11, 1, Q("0.553279 mm")),
    Sketcher.Constraint("DistanceY", 12, 1, 12, 2, Q("0.48438 mm")),
    Sketcher.Constraint("DistanceX", -1, 1, 1, 2, Q("7.502099 mm")),
    Sketcher.Constraint("DistanceY", 6, 2, 1, 2, Q("15.277401 mm")),
    Sketcher.Constraint("DistanceX", 1, 1, 1, 2, Q("0.598067 mm")),
    Sketcher.Constraint("DistanceX", 5, 1, 5, 2, Q("1.117916 mm")),
    Sketcher.Constraint("DistanceX", 9, 2, 9, 1, Q("9.484217 mm")),
    Sketcher.Constraint("DistanceX", 13, 1, 13, 2, Q("0.483027 mm")),
    Sketcher.Constraint("DistanceY", 0, 2, 0, 1, Q("0.500903 mm")),
    Sketcher.Constraint("DistanceY", 2, 2, 2, 1, Q("0.564104 mm")),
    Sketcher.Constraint("DistanceY", 4, 2, 4, 1, Q("11.414494 mm")),
    Sketcher.Constraint("DistanceY", 8, 1, 8, 2, Q("13.902993 mm")),
    Sketcher.Constraint("DistanceY", 10, 1, 10, 2, Q("0.849736 mm")),
    Sketcher.Constraint("DistanceY", 2, 2, -1, 1, Q("7.587341 mm")),
])
pocket7 = body.newObject("PartDesign::Pocket", "Pocket006")
pocket7.Profile = sketch8
pocket7.Type = "ThroughAll"
pocket7.Midplane = True

sketch9 = body.newObject("Sketcher::SketchObject", "Sketch008")
sketch9.AttachmentSupport = (doc.getObject("XY_Plane"), [""])
sketch9.MapMode = "FlatFace"
sketch9.addGeometry([
    Part.LineSegment(V(11.5, -3.73, 0), V(11.5, -7.89, 0)),
    Part.LineSegment(V(11.5, -7.89, 0), V(20.37, -7.89, 0)),
    Part.LineSegment(V(20.37, -7.89, 0), V(20.37, -0.88, 0)),
    Part.LineSegment(V(20.37, -0.88, 0), V(11.56, -0.88, 0)),
    Part.LineSegment(V(11.56, -0.88, 0), V(11.56, -1.38, 0)),
    Part.LineSegment(V(11.56, -1.38, 0), V(10.84, -1.38, 0)),
    Part.LineSegment(V(10.84, -1.38, 0), V(10.84, -0.97, 0)),
    Part.LineSegment(V(10.84, -0.97, 0), V(6.53, -0.97, 0)),
    Part.LineSegment(V(6.53, -0.97, 0), V(6.53, -6.51, 0)),
    Part.LineSegment(V(6.53, -6.51, 0), V(10.87, -6.51, 0)),
    Part.LineSegment(V(10.87, -6.51, 0), V(10.87, -3.72, 0)),
    Part.LineSegment(V(10.87, -3.72, 0), V(11.5, -3.73, 0)),
], False)
sketch9.addConstraint([
    Sketcher.Constraint("Coincident", 0, 2, 1, 1),
    Sketcher.Constraint("Coincident", 1, 2, 2, 1),
    Sketcher.Constraint("Coincident", 2, 2, 3, 1),
    Sketcher.Constraint("Coincident", 3, 2, 4, 1),
    Sketcher.Constraint("Coincident", 4, 2, 5, 1),
    Sketcher.Constraint("Coincident", 5, 2, 6, 1),
    Sketcher.Constraint("Coincident", 6, 2, 7, 1),
    Sketcher.Constraint("Coincident", 7, 2, 8, 1),
    Sketcher.Constraint("Coincident", 8, 2, 9, 1),
    Sketcher.Constraint("Coincident", 9, 2, 10, 1),
    Sketcher.Constraint("Coincident", 10, 2, 11, 1),
    Sketcher.Constraint("Coincident", 11, 2, 0, 1),
    Sketcher.Constraint("Vertical", 0),
    Sketcher.Constraint("Horizontal", 1),
    Sketcher.Constraint("Vertical", 2),
    Sketcher.Constraint("Horizontal", 3),
    Sketcher.Constraint("Vertical", 4),
    Sketcher.Constraint("Horizontal", 5),
    Sketcher.Constraint("Vertical", 6),
    Sketcher.Constraint("Horizontal", 7),
    Sketcher.Constraint("Vertical", 8),
    Sketcher.Constraint("Horizontal", 9),
    Sketcher.Constraint("Vertical", 10),
    Sketcher.Constraint("DistanceY", 4, 2, 4, 1, Q("0.500399 mm")),
    Sketcher.Constraint("DistanceY", 11, 2, 6, 2, Q("2.766998 mm")),
    Sketcher.Constraint("DistanceX", 7, 2, 7, 1, Q("4.312149 mm")),
    Sketcher.Constraint("DistanceX", 5, 2, 2, 2, Q("9.529599 mm")),
    Sketcher.Constraint("DistanceX", 1, 1, 1, 2, Q("8.866013 mm")),
    Sketcher.Constraint("DistanceX", 3, 2, 3, 1, Q("8.812207 mm")),
    Sketcher.Constraint("DistanceX", 9, 1, 9, 2, Q("4.348018 mm")),
    Sketcher.Constraint("DistanceY", 0, 2, 0, 1, Q("4.159977 mm")),
    Sketcher.Constraint("DistanceY", 2, 1, 2, 2, Q("7.010737 mm")),
    Sketcher.Constraint("DistanceY", 8, 2, 8, 1, Q("5.538786 mm")),
    Sketcher.Constraint("DistanceY", 10, 1, 10, 2, Q("2.789723 mm")),
    Sketcher.Constraint("DistanceY", 6, 2, -1, 1, Q("0.96668 mm")),
    Sketcher.Constraint("DistanceX", -1, 1, 0, 2, Q("11.501872 mm")),
])
pocket8 = body.newObject("PartDesign::Pocket", "Pocket007")
pocket8.Profile = sketch9
pocket8.Type = "ThroughAll"
pocket8.Midplane = True

doc.recompute()
